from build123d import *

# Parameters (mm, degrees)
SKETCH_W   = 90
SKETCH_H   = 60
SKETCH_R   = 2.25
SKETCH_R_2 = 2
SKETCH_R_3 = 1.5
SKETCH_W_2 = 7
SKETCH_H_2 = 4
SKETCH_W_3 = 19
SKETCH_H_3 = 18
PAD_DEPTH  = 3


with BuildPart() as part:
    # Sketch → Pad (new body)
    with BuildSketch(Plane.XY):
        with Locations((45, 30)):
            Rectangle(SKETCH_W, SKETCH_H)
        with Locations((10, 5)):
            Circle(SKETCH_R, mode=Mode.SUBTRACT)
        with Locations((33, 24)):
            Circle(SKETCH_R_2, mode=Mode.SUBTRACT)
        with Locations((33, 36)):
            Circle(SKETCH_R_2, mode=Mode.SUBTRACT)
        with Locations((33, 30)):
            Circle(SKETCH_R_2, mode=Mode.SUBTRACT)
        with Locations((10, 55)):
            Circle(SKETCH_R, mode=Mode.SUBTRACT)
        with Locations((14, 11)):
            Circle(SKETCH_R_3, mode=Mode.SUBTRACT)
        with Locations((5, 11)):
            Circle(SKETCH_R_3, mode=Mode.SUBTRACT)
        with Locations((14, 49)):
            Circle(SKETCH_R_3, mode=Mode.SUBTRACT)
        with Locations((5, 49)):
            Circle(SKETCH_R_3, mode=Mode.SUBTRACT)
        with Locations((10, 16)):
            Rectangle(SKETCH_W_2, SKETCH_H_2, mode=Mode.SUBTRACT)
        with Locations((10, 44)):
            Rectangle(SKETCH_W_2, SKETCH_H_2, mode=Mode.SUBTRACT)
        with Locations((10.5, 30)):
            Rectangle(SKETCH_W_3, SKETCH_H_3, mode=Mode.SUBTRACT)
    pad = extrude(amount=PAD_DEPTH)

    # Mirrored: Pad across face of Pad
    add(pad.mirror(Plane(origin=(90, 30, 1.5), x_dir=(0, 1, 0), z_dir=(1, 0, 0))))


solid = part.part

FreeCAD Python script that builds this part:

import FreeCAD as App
import Part
import Sketcher


def add_polygon(sketch, points):
    """Adds a closed chain of lines whose ends are joined by coincident constraints."""
    first, n = sketch.GeometryCount, len(points)
    for a, b in zip(points, points[1:] + points[:1]):
        sketch.addGeometry(Part.LineSegment(App.Vector(*a, 0), App.Vector(*b, 0)), False)
    for i in range(n):
        sketch.addConstraint(Sketcher.Constraint("Coincident", first + i, 2, first + (i + 1) % n, 1))

doc = App.newDocument("Part")
params = doc.addObject("Spreadsheet::Sheet", "Params")
for row, (alias, value) in enumerate([
    ("sketch1_diameter", "3 mm"),
    ("sketch1_diameter2", "4 mm"),
    ("sketch1_diameter3", "4.5 mm"),
    ("sketch1_width", "90 mm"),
    ("sketch1_width2", "7 mm"),
    ("pad1_length", "3 mm"),
], start=1):
    params.set(f"A{row}", alias)
    params.set(f"B{row}", "=" + value)
    params.setAlias(f"B{row}", alias)

body = doc.addObject("PartDesign::Body", "Body")

sketch1 = body.newObject("Sketcher::SketchObject", "Sketch")
sketch1.AttachmentSupport = (doc.getObject("XY_Plane"), [""])
sketch1.MapMode = "FlatFace"
add_polygon(sketch1, [(0, 60), (0, 0), (90, 0), (90, 60)])
sketch1.addGeometry(Part.Circle(App.Vector(5, 11, 0), App.Vector(0, 0, 1), 1.5), False)
sketch1.addGeometry(Part.Circle(App.Vector(10, 5, 0), App.Vector(0, 0, 1), 2.25), False)
add_polygon(sketch1, [(13.5, 14), (6.5, 14), (6.5, 18), (13.5, 18)])
sketch1.addGeometry(Part.Circle(App.Vector(14, 11, 0), App.Vector(0, 0, 1), 1.5), False)
sketch1.addGeometry(Part.Circle(App.Vector(33, 24, 0), App.Vector(0, 0, 1), 2), False)
add_polygon(sketch1, [(20, 21), (1, 21), (1, 39), (20, 39)])
sketch1.addGeometry(Part.Circle(App.Vector(5, 49, 0), App.Vector(0, 0, 1), 1.5), False)
add_polygon(sketch1, [(13.5, 42), (6.5, 42), (6.5, 46), (13.5, 46)])
sketch1.addGeometry(Part.Circle(App.Vector(14, 49, 0), App.Vector(0, 0, 1), 1.5), False)
sketch1.addGeometry(Part.Circle(App.Vector(10, 55, 0), App.Vector(0, 0, 1), 2.25), False)
sketch1.addGeometry(Part.Circle(App.Vector(33, 30, 0), App.Vector(0, 0, 1), 2), False)
sketch1.addGeometry(Part.Circle(App.Vector(33, 36, 0), App.Vector(0, 0, 1), 2), False)
sketch1.addConstraint([
    Sketcher.Constraint("Vertical", 0),
    Sketcher.Constraint("Horizontal", 1),
    Sketcher.Constraint("Vertical", 2),
    Sketcher.Constraint("Horizontal", 3),
    Sketcher.Constraint("Horizontal", 6),
    Sketcher.Constraint("Vertical", 7),
    Sketcher.Constraint("Horizontal", 8),
    Sketcher.Constraint("Vertical", 9),
    Sketcher.Constraint("Horizontal", 12),
    Sketcher.Constraint("Vertical", 13),
    Sketcher.Constraint("Horizontal", 14),
    Sketcher.Constraint("Vertical", 15),
    Sketcher.Constraint("Horizontal", 17),
    Sketcher.Constraint("Vertical", 18),
    Sketcher.Constraint("Horizontal", 19),
    Sketcher.Constraint("Vertical", 20),
    Sketcher.Constraint("Coincident", 0, 2, -1, 1),
    Sketcher.Constraint("Equal", 4, 10),
    Sketcher.Constraint("Equal", 10, 16),
    Sketcher.Constraint("Equal", 16, 21),
    Sketcher.Constraint("Equal", 5, 22),
    Sketcher.Constraint("Equal", 11, 23),
    Sketcher.Constraint("Equal", 23, 24),
    Sketcher.Constraint("Horizontal", 4, 3, 10, 3),
    Sketcher.Constraint("Horizontal", 16, 3, 21, 3),
    Sketcher.Constraint("Vertical", 4, 3, 16, 3),
    Sketcher.Constraint("Vertical", 10, 3, 21, 3),
    Sketcher.Constraint("Vertical", 5, 3, 22, 3),
    Sketcher.Constraint("Vertical", 11, 3, 23, 3),
    Sketcher.Constraint("Vertical", 23, 3, 24, 3),
    Sketcher.Constraint("Vertical", 7, 2, 17, 2),
    Sketcher.Constraint("Vertical", 9, 2, 19, 2),
    Sketcher.Constraint("Equal", 9, 18),
    Sketcher.Constraint("Diameter", 4, 3.0),
    Sketcher.Constraint("Diameter", 11, 4.0),
    Sketcher.Constraint("Diameter", 5, 4.5),
    Sketcher.Constraint("DistanceX", 1, 1, 1, 2, 90.0),
    Sketcher.Constraint("DistanceX", 6, 2, 6, 1, 7.0),
    Sketcher.Constraint("DistanceX", 12, 2, 12, 1, 19.0),
    Sketcher.Constraint("DistanceY", 0, 2, 0, 1, 60.0),
    Sketcher.Constraint("DistanceY", 7, 1, 7, 2, 4.0),
    Sketcher.Constraint("DistanceY", 13, 1, 13, 2, 18.0),
    Sketcher.Constraint("DistanceX", -1, 1, 4, 3, 5.0),
    Sketcher.Constraint("DistanceY", -1, 1, 4, 3, 11.0),
    Sketcher.Constraint("DistanceX", -1, 1, 5, 3, 10.0),
    Sketcher.Constraint("DistanceY", -1, 1, 5, 3, 5.0),
    Sketcher.Constraint("DistanceX", -1, 1, 10, 3, 14.0),
    Sketcher.Constraint("DistanceX", -1, 1, 11, 3, 33.0),
    Sketcher.Constraint("DistanceY", -1, 1, 11, 3, 24.0),
    Sketcher.Constraint("DistanceY", -1, 1, 16, 3, 49.0),
    Sketcher.Constraint("DistanceY", -1, 1, 22, 3, 55.0),
    Sketcher.Constraint("DistanceY", -1, 1, 23, 3, 30.0),
    Sketcher.Constraint("DistanceY", -1, 1, 24, 3, 36.0),
    Sketcher.Constraint("DistanceY", -1, 1, 6, 2, 14.0),
    Sketcher.Constraint("DistanceX", -1, 1, 12, 2, 1.0),
    Sketcher.Constraint("DistanceY", -1, 1, 12, 2, 21.0),
    Sketcher.Constraint("DistanceY", -1, 1, 17, 2, 42.0),
    Sketcher.Constraint("DistanceX", -1, 1, 6, 2, 6.5),
])
sketch1.setExpression("Constraints[49]", "Params.sketch1_diameter")
sketch1.setExpression("Constraints[50]", "Params.sketch1_diameter2")
sketch1.setExpression("Constraints[51]", "Params.sketch1_diameter3")
sketch1.setExpression("Constraints[52]", "Params.sketch1_width")
sketch1.setExpression("Constraints[53]", "Params.sketch1_width2")
pad1 = body.newObject("PartDesign::Pad", "Pad")
pad1.Profile = sketch1
pad1.setExpression("Length", "Params.pad1_length")
doc.recompute()

datumplane = body.newObject("PartDesign::Plane", "DatumPlane")
datumplane.AttachmentSupport = (doc.getObject("YZ_Plane"), [""])
datumplane.MapMode = "FlatFace"
datumplane.AttachmentOffset = App.Placement(App.Vector(0, 0, 90), App.Rotation())
mirrored = body.newObject("PartDesign::Mirrored", "Mirrored")
mirrored.Originals = [pad1]
mirrored.MirrorPlane = (datumplane, [""])
body.Tip = mirrored

doc.recompute()
